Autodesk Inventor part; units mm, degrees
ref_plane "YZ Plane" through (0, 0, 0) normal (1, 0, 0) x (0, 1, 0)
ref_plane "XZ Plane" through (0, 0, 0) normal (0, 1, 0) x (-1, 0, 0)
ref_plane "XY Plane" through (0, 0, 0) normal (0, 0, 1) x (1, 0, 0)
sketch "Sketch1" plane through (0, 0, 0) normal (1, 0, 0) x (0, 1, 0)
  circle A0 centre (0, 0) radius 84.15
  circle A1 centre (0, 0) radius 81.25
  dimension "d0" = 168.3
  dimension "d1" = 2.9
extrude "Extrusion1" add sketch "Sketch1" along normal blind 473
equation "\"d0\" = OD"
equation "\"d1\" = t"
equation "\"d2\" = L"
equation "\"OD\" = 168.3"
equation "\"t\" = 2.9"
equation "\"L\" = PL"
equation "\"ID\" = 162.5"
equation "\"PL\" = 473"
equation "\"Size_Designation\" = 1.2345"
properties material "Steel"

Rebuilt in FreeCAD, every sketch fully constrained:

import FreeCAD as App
import Part
import Sketcher

doc = App.newDocument("Part")
body = doc.addObject("PartDesign::Body", "Body")

# Sketch on YZ plane
sketch1 = body.newObject("Sketcher::SketchObject", "Sketch")
sketch1.AttachmentSupport = (doc.getObject("YZ_Plane"), [""])
sketch1.MapMode = "FlatFace"
sketch1.addGeometry(Part.Circle(App.Vector(0, 0, 0), App.Vector(0, 0, 1), 84.15), False)
sketch1.addGeometry(Part.Circle(App.Vector(0, 0, 0), App.Vector(0, 0, 1), 81.25), False)
sketch1.addConstraint(Sketcher.Constraint("Coincident", 0, 3, -1, 1))
sketch1.addConstraint(Sketcher.Constraint("Coincident", 1, 3, -1, 1))
sketch1.addConstraint(Sketcher.Constraint("Diameter", 0, 168.3))
sketch1.addConstraint(Sketcher.Constraint("Diameter", 1, 162.5))
pad1 = body.newObject("PartDesign::Pad", "Pad")
pad1.Profile = sketch1
pad1.Length = 473

doc.recompute()
